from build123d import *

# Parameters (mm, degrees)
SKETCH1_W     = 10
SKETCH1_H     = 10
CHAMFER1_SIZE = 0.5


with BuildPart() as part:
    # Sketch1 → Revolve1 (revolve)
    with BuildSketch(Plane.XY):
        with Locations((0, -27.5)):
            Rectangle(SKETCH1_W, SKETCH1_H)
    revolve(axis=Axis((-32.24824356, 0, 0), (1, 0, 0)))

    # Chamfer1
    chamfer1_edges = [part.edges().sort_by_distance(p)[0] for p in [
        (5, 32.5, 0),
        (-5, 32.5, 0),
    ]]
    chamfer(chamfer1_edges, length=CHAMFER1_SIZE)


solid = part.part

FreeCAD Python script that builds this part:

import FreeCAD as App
import Part
import Sketcher
Q = App.Units.Quantity


def edges_at(feature, points):
    """Names of the edges that pass closest to the given points."""
    edges = feature.Shape.Edges
    near = lambda p: min(range(len(edges)), key=lambda i: edges[i].distToShape(Part.Vertex(*p))[0])
    return sorted({f"Edge{near(p) + 1}" for p in points})


def add_polygon(sketch, points):
    """Adds a closed chain of lines whose ends are joined by coincident constraints."""
    first, n = sketch.GeometryCount, len(points)
    for a, b in zip(points, points[1:] + points[:1]):
        sketch.addGeometry(Part.LineSegment(App.Vector(*a, 0), App.Vector(*b, 0)), False)
    for i in range(n):
        sketch.addConstraint(Sketcher.Constraint("Coincident", first + i, 2, first + (i + 1) % n, 1))

doc = App.newDocument("Part")
params = doc.addObject("Spreadsheet::Sheet", "Params")
for row, (alias, value) in enumerate([
    ("sketch1_width", "10 mm"),
    ("revolution_angle", "360 deg"),
    ("chamfer_size", "0.5 mm"),
], start=1):
    params.set(f"A{row}", alias)
    params.set(f"B{row}", "=" + value)
    params.setAlias(f"B{row}", alias)

body = doc.addObject("PartDesign::Body", "Body")

sketch1 = doc.addObject("Sketcher::SketchObject", "Sketch")
body.addObject(sketch1)
sketch1.AttachmentSupport = (doc.XY_Plane, [""])
sketch1.MapMode = "FlatFace"
add_polygon(sketch1, [(-5, -22), (-5, -32), (5, -32), (5, -22)])
sketch1.addConstraint([
    Sketcher.Constraint("Vertical", 0),
    Sketcher.Constraint("Horizontal", 1),
    Sketcher.Constraint("Vertical", 2),
    Sketcher.Constraint("Horizontal", 3),
    Sketcher.Constraint("Equal", 3, 0),
    Sketcher.Constraint("DistanceX", 1, 1, 1, 2, Q("10 mm")),
    Sketcher.Constraint("DistanceX", 0, 2, -1, 1, Q("5 mm")),
    Sketcher.Constraint("DistanceY", 0, 2, -1, 1, Q("32.5 mm")),
])
sketch1.setExpression("Constraints[9]", "Params.sketch1_width")
revolution = doc.addObject("PartDesign::Revolution", "Revolution")
body.addObject(revolution)
revolution.Profile = sketch1
revolution.ReferenceAxis = (sketch1, ["H_Axis"])
revolution.setExpression("Angle", "Params.revolution_angle")
doc.recompute()

chamfer = doc.addObject("PartDesign::Chamfer", "Chamfer")
body.addObject(chamfer)
chamfer.Base = (revolution, edges_at(revolution, [(5, 32.5, 0), (-5, 32.5, 0)]))
chamfer.setExpression("Size", "Params.chamfer_size")

doc.recompute()
